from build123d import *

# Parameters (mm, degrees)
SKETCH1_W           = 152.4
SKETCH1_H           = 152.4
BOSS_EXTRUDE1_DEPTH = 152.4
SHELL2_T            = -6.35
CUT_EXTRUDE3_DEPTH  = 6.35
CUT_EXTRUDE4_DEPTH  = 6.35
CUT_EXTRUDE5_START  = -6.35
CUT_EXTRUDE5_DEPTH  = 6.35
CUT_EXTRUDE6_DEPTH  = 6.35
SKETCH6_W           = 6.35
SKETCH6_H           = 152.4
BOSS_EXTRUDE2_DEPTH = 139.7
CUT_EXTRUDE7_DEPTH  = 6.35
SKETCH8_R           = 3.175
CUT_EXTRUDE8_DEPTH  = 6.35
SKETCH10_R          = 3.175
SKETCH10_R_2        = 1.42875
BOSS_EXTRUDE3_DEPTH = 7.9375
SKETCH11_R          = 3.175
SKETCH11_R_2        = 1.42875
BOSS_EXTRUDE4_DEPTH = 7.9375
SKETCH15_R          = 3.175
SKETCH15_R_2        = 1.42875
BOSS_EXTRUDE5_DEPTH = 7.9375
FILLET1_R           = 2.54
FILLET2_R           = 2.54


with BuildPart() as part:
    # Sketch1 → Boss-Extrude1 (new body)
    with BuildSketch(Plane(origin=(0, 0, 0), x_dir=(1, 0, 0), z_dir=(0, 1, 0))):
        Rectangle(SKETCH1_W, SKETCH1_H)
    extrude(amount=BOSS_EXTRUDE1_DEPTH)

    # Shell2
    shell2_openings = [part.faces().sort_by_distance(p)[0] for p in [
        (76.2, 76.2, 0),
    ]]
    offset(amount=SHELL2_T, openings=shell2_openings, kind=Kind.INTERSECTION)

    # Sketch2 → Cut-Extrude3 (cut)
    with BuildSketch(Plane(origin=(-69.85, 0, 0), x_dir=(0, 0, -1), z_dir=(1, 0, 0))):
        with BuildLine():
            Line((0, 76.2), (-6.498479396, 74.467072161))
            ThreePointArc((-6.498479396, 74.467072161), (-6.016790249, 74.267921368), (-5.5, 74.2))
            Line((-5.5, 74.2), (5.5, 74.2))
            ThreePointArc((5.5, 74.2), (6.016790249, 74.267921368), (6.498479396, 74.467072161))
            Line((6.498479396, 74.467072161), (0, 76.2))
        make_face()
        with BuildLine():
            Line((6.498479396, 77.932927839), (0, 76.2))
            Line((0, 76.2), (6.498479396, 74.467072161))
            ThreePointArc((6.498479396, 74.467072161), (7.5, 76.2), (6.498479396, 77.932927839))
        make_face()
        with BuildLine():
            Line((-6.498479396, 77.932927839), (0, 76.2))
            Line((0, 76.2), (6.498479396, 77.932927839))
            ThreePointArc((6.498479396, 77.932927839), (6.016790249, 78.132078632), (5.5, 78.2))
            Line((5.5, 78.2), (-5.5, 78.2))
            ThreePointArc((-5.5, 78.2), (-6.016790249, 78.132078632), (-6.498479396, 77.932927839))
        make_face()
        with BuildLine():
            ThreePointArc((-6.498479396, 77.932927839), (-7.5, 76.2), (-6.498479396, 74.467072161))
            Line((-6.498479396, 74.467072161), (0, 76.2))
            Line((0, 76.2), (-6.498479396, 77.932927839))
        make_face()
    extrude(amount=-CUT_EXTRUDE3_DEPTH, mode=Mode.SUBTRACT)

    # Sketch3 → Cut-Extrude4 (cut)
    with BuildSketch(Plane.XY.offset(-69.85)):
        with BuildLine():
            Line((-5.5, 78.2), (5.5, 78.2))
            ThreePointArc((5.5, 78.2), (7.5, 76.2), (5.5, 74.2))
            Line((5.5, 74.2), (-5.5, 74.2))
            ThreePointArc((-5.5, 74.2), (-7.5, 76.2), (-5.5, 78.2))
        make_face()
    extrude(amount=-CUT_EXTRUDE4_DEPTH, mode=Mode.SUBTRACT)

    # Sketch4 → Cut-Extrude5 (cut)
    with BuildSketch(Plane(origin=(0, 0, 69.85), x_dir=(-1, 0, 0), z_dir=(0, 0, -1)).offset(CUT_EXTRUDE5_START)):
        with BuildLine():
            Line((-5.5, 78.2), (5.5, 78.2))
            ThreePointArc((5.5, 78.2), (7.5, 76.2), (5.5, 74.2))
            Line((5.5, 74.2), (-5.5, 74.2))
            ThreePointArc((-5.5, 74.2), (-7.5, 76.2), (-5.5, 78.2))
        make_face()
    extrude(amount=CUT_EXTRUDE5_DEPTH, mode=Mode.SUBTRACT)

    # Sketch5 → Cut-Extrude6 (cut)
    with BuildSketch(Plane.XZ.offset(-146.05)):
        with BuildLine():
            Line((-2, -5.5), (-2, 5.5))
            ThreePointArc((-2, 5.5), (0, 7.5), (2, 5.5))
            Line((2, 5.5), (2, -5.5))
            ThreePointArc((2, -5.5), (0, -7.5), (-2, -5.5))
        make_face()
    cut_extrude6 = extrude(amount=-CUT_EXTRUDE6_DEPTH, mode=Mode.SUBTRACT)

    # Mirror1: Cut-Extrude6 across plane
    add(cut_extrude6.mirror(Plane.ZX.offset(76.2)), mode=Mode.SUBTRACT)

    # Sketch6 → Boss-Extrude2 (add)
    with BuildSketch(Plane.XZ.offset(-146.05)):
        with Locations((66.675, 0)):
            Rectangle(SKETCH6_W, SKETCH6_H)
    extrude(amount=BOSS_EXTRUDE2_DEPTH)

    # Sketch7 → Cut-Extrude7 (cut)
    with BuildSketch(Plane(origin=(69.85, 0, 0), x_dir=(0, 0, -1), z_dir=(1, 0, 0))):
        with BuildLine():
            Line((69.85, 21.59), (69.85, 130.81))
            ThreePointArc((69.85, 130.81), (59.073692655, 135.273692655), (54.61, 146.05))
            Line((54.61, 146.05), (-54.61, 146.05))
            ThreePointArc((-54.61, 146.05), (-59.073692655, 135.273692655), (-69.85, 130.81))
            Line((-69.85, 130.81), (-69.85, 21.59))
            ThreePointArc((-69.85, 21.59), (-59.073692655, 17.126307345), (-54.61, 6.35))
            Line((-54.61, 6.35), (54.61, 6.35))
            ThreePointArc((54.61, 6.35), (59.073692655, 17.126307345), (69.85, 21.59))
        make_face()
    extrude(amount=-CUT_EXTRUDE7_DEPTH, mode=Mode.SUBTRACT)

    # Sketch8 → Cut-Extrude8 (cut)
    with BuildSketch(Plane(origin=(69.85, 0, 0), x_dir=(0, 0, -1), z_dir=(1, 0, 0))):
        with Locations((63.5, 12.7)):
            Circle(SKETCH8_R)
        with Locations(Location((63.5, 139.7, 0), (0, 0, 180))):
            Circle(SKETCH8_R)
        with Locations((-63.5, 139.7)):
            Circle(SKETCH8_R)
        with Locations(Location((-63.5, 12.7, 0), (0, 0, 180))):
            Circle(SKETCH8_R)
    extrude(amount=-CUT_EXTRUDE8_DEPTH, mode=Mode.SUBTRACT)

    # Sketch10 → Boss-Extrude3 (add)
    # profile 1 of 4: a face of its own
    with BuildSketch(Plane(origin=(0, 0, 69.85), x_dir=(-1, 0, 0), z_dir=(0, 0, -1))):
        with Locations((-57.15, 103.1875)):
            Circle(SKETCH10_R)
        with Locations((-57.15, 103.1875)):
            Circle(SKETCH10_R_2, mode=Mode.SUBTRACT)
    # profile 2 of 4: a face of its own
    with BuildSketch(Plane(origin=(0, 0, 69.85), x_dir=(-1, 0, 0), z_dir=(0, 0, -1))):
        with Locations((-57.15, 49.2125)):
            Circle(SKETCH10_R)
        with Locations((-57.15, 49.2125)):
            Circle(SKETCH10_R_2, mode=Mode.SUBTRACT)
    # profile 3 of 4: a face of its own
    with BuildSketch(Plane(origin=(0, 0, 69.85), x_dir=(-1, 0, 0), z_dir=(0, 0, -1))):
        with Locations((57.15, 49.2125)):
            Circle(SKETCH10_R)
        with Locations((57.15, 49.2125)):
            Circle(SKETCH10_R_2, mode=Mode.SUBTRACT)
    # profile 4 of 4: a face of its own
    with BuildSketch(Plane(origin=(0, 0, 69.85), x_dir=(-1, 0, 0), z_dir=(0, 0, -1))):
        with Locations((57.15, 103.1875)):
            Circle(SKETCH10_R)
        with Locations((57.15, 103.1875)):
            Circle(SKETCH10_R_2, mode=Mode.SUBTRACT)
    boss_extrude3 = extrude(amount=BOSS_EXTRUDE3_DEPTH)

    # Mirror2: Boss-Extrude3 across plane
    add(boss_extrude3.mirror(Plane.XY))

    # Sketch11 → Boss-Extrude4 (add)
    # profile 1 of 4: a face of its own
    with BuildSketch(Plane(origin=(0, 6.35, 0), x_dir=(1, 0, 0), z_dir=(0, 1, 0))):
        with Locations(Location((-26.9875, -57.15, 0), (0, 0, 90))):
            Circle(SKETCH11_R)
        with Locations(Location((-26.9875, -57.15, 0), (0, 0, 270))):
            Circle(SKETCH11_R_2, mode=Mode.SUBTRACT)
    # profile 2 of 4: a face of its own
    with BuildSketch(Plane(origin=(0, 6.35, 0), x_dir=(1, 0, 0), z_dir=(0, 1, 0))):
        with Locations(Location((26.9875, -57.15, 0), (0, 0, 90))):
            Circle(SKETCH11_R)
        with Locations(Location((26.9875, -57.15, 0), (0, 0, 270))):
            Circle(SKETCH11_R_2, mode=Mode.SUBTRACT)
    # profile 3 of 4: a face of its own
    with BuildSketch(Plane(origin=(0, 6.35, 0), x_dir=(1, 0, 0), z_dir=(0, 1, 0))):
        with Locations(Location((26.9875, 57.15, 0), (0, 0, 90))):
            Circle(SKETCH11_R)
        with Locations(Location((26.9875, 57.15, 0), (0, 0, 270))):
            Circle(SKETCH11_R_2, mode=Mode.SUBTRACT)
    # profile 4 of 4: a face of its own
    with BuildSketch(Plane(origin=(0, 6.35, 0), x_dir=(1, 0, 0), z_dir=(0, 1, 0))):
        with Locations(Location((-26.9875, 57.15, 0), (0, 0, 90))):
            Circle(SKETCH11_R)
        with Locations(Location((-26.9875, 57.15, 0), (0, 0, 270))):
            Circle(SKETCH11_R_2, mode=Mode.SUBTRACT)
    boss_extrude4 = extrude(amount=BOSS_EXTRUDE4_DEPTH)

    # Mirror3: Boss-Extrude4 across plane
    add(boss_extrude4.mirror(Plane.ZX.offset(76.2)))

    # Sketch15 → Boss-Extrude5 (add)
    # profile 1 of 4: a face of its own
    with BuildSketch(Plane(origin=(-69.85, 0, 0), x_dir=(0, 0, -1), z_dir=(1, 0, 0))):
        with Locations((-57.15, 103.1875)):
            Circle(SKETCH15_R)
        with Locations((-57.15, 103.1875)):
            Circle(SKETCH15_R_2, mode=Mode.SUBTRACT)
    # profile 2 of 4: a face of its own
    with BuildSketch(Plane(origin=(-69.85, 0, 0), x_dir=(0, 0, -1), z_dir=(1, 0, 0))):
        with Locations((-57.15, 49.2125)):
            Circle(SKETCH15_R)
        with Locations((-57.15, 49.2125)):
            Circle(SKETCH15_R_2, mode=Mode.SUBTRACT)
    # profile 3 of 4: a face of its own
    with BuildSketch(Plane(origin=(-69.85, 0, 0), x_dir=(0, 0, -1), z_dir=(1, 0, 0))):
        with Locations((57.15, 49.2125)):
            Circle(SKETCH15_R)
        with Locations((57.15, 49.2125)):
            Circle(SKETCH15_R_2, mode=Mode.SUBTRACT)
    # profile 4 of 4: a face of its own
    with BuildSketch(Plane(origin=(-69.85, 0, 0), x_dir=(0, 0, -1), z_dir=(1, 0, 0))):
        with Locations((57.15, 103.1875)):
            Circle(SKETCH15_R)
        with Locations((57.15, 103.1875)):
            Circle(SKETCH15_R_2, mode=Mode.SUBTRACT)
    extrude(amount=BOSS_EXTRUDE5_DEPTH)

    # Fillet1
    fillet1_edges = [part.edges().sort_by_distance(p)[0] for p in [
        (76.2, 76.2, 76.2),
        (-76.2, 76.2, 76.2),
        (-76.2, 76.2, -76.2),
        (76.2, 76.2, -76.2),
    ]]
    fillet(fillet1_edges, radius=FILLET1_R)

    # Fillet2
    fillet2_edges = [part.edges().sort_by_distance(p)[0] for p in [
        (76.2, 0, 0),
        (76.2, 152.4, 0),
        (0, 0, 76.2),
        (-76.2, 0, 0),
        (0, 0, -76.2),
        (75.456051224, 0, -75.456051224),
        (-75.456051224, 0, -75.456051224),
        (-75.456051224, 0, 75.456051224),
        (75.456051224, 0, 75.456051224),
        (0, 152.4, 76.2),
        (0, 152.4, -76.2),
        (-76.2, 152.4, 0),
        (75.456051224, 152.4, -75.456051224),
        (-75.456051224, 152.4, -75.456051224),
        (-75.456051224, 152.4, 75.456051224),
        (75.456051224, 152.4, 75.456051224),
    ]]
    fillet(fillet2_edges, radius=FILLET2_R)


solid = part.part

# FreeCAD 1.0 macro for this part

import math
import FreeCAD as App
import Part
import Sketcher
from FreeCAD import Vector
Q = App.Units.Quantity


def edges_at(feature, points):
    """Names of the edges that pass closest to the given points."""
    edges = feature.Shape.Edges
    near = lambda p: min(range(len(edges)), key=lambda i: edges[i].distToShape(Part.Vertex(*p))[0])
    return sorted({f"Edge{near(p) + 1}" for p in points})


def faces_at(feature, points):
    """Names of the faces that lie closest to the given points."""
    faces = feature.Shape.Faces
    near = lambda p: min(range(len(faces)), key=lambda i: faces[i].distToShape(Part.Vertex(*p))[0])
    return sorted({f"Face{near(p) + 1}" for p in points})


def add_polygon(sketch, points):
    """Adds a closed chain of lines whose ends are joined by coincident constraints."""
    first, n = sketch.GeometryCount, len(points)
    for a, b in zip(points, points[1:] + points[:1]):
        sketch.addGeometry(Part.LineSegment(App.Vector(*a, 0), App.Vector(*b, 0)), False)
    for i in range(n):
        sketch.addConstraint(Sketcher.Constraint("Coincident", first + i, 2, first + (i + 1) % n, 1))

doc = App.newDocument("Part")
body = doc.addObject("PartDesign::Body", "Body")

sketch1 = doc.addObject("Sketcher::SketchObject", "Sketch")
body.addObject(sketch1)
sketch1.AttachmentSupport = (doc.XZ_Plane, [""])
sketch1.MapMode = "FlatFace"
add_polygon(sketch1, [(-76.2, -76.2), (-76.2, 76.2), (76.2, 76.2), (76.2, -76.2)])
sketch1.addConstraint([
    Sketcher.Constraint("Vertical", 0),
    Sketcher.Constraint("Horizontal", 1),
    Sketcher.Constraint("Vertical", 2),
    Sketcher.Constraint("Horizontal", 3),
    Sketcher.Constraint("Symmetric", 0, 2, 2, 2, -1, 1),
    Sketcher.Constraint("Equal", 3, 0),
    Sketcher.Constraint("DistanceX", 1, 1, 1, 2, Q("6 in")),
])
pad1 = doc.addObject("PartDesign::Pad", "Pad")
body.addObject(pad1)
pad1.Profile = sketch1
pad1.Length = Q("6 in")
pad1.Reversed = True
doc.recompute()

thickness = doc.addObject("PartDesign::Thickness", "Thickness")
body.addObject(thickness)
thickness.Base = (pad1, faces_at(pad1, [(76.2, 76.2, 0)]))
thickness.Value = Q("0.25 in")
thickness.Reversed = True
thickness.Join = "Intersection"

sketch2 = doc.addObject("Sketcher::SketchObject", "Sketch001")
body.addObject(sketch2)
sketch2.AttachmentSupport = (doc.YZ_Plane, [""])
sketch2.MapMode = "FlatFace"
sketch2.AttachmentOffset = App.Placement(Vector(0, 0, -2.75 * 25.4), App.Rotation())
sketch2.addGeometry([
    Part.ArcOfCircle(Part.Circle(Vector(76.2, 5.5, 0), Vector(0, 0, 1), 2), math.radians(150.050288), math.radians(180)),
    Part.LineSegment(Vector(74.2, 5.5, 0), Vector(74.2, -5.5, 0)),
    Part.ArcOfCircle(Part.Circle(Vector(76.2, -5.5, 0), Vector(0, 0, 1), 2), math.radians(180), math.radians(209.949712)),
    Part.ArcOfCircle(Part.Circle(Vector(76.2, -5.5, 0), Vector(0, 0, 1), 2), math.radians(-150.050288), math.radians(-29.949712)),
    Part.ArcOfCircle(Part.Circle(Vector(76.2, -5.5, 0), Vector(0, 0, 1), 2), math.radians(-29.949712), math.radians(0)),
    Part.LineSegment(Vector(78.2, -5.5, 0), Vector(78.2, 5.5, 0)),
    Part.ArcOfCircle(Part.Circle(Vector(76.2, 5.5, 0), Vector(0, 0, 1), 2), math.radians(0), math.radians(29.949712)),
    Part.ArcOfCircle(Part.Circle(Vector(76.2, 5.5, 0), Vector(0, 0, 1), 2), math.radians(29.949712), math.radians(150.050288)),
], False)
sketch2.addConstraint([
    Sketcher.Constraint("Tangent", 0, 2, 1, 1),
    Sketcher.Constraint("Tangent", 1, 2, 2, 1),
    Sketcher.Constraint("Tangent", 2, 2, 3, 1),
    Sketcher.Constraint("Tangent", 3, 2, 4, 1),
    Sketcher.Constraint("Tangent", 4, 2, 5, 1),
    Sketcher.Constraint("Tangent", 5, 2, 6, 1),
    Sketcher.Constraint("Tangent", 6, 2, 7, 1),
    Sketcher.Constraint("Tangent", 7, 2, 0, 1),
    Sketcher.Constraint("Vertical", 1),
    Sketcher.Constraint("Vertical", 5),
    Sketcher.Constraint("Coincident", 4, 3, 2, 3),
    Sketcher.Constraint("Coincident", 6, 3, 0, 3),
    Sketcher.Constraint("Symmetric", 3, 2, 6, 2, -1),
    Sketcher.Constraint("Horizontal", 2, 2, 3, 2),
    Sketcher.Constraint("Horizontal", 6, 2, 7, 2),
    Sketcher.Constraint("DistanceX", -1, 1, 0, 3, Q("3 in")),
    Sketcher.Constraint("Radius", 0, 2.0),
    Sketcher.Constraint("DistanceY", 1, 2, 1, 1, 11.0),
    Sketcher.Constraint("DistanceY", 2, 2, -1, 1, 6.498479),
])
pocket1 = doc.addObject("PartDesign::Pocket", "Pocket")
body.addObject(pocket1)
pocket1.Profile = sketch2
pocket1.Length = Q("0.25 in")

sketch3 = doc.addObject("Sketcher::SketchObject", "Sketch002")
body.addObject(sketch3)
sketch3.AttachmentSupport = (doc.XY_Plane, [""])
sketch3.MapMode = "FlatFace"
sketch3.AttachmentOffset = App.Placement(Vector(0, 0, -2.75 * 25.4), App.Rotation())
sketch3.addGeometry([
    Part.LineSegment(Vector(5.5, 78.2, 0), Vector(-5.5, 78.2, 0)),
    Part.ArcOfCircle(Part.Circle(Vector(-5.5, 76.2, 0), Vector(0, 0, 1), 2), math.radians(90), math.radians(270)),
    Part.LineSegment(Vector(-5.5, 74.2, 0), Vector(5.5, 74.2, 0)),
    Part.ArcOfCircle(Part.Circle(Vector(5.5, 76.2, 0), Vector(0, 0, 1), 2), math.radians(-90), math.radians(90)),
], False)
sketch3.addConstraint([
    Sketcher.Constraint("Tangent", 0, 2, 1, 1),
    Sketcher.Constraint("Tangent", 1, 2, 2, 1),
    Sketcher.Constraint("Tangent", 2, 2, 3, 1),
    Sketcher.Constraint("Tangent", 3, 2, 0, 1),
    Sketcher.Constraint("Horizontal", 0),
    Sketcher.Constraint("Horizontal", 2),
    Sketcher.Constraint("DistanceY", -1, 1, 1, 3, Q("3 in")),
    Sketcher.Constraint("Radius", 1, 2.0),
    Sketcher.Constraint("DistanceX", 0, 2, 0, 1, 11.0),
    Sketcher.Constraint("DistanceX", 1, 3, -1, 1, 5.5),
])
pocket2 = doc.addObject("PartDesign::Pocket", "Pocket001")
body.addObject(pocket2)
pocket2.Profile = sketch3
pocket2.Length = Q("0.25 in")

sketch4 = doc.addObject("Sketcher::SketchObject", "Sketch003")
body.addObject(sketch4)
sketch4.AttachmentSupport = (doc.XY_Plane, [""])
sketch4.MapMode = "FlatFace"
sketch4.AttachmentOffset = App.Placement(Vector(0, 0, 3 * 25.4), App.Rotation())
sketch4.addGeometry([
    Part.LineSegment(Vector(-5.5, 78.2, 0), Vector(5.5, 78.2, 0)),
    Part.ArcOfCircle(Part.Circle(Vector(5.5, 76.2, 0), Vector(0, 0, 1), 2), math.radians(-90), math.radians(90)),
    Part.LineSegment(Vector(5.5, 74.2, 0), Vector(-5.5, 74.2, 0)),
    Part.ArcOfCircle(Part.Circle(Vector(-5.5, 76.2, 0), Vector(0, 0, 1), 2), math.radians(90), math.radians(270)),
], False)
sketch4.addConstraint([
    Sketcher.Constraint("Tangent", 0, 2, 1, 2),
    Sketcher.Constraint("Tangent", 1, 1, 2, 1),
    Sketcher.Constraint("Tangent", 2, 2, 3, 2),
    Sketcher.Constraint("Tangent", 3, 1, 0, 1),
    Sketcher.Constraint("Horizontal", 0),
    Sketcher.Constraint("Horizontal", 2),
    Sketcher.Constraint("DistanceY", -1, 1, 1, 3, Q("3 in")),
    Sketcher.Constraint("Radius", 1, 2.0),
    Sketcher.Constraint("DistanceX", 0, 1, 0, 2, 11.0),
    Sketcher.Constraint("DistanceX", -1, 1, 1, 3, 5.5),
])
pocket3 = doc.addObject("PartDesign::Pocket", "Pocket002")
body.addObject(pocket3)
pocket3.Profile = sketch4
pocket3.Length = Q("0.25 in")

sketch5 = doc.addObject("Sketcher::SketchObject", "Sketch004")
body.addObject(sketch5)
sketch5.AttachmentSupport = (doc.XZ_Plane, [""])
sketch5.MapMode = "FlatFace"
sketch5.AttachmentOffset = App.Placement(Vector(0, 0, -5.75 * 25.4), App.Rotation())
sketch5.addGeometry([
    Part.LineSegment(Vector(-2, 5.5, 0), Vector(-2, -5.5, 0)),
    Part.ArcOfCircle(Part.Circle(Vector(0, -5.5, 0), Vector(0, 0, 1), 2), math.radians(180), math.radians(360)),
    Part.LineSegment(Vector(2, -5.5, 0), Vector(2, 5.5, 0)),
    Part.ArcOfCircle(Part.Circle(Vector(0, 5.5, 0), Vector(0, 0, 1), 2), math.radians(0), math.radians(180)),
], False)
sketch5.addConstraint([
    Sketcher.Constraint("Tangent", 0, 2, 1, 1),
    Sketcher.Constraint("Tangent", 1, 2, 2, 1),
    Sketcher.Constraint("Tangent", 2, 2, 3, 1),
    Sketcher.Constraint("Tangent", 3, 2, 0, 1),
    Sketcher.Constraint("Vertical", 0),
    Sketcher.Constraint("Vertical", 2),
    Sketcher.Constraint("Symmetric", 1, 3, 3, 3, -1, 1),
    Sketcher.Constraint("Radius", 1, 2.0),
    Sketcher.Constraint("DistanceY", 0, 2, 0, 1, 11.0),
])
pocket4 = doc.addObject("PartDesign::Pocket", "Pocket003")
body.addObject(pocket4)
pocket4.Profile = sketch5
pocket4.Length = Q("0.25 in")
doc.recompute()

datumplane = doc.addObject("PartDesign::Plane", "DatumPlane")
body.addObject(datumplane)
datumplane.AttachmentSupport = (doc.XZ_Plane, [""])
datumplane.MapMode = "FlatFace"
datumplane.AttachmentOffset = App.Placement(Vector(0, 0, -3 * 25.4), App.Rotation())
mirrored = doc.addObject("PartDesign::Mirrored", "Mirrored")
body.addObject(mirrored)
mirrored.Originals = [pocket4]
mirrored.MirrorPlane = (datumplane, [""])
body.Tip = mirrored

sketch6 = doc.addObject("Sketcher::SketchObject", "Sketch005")
body.addObject(sketch6)
sketch6.AttachmentSupport = (doc.XZ_Plane, [""])
sketch6.MapMode = "FlatFace"
sketch6.AttachmentOffset = App.Placement(Vector(0, 0, -5.75 * 25.4), App.Rotation())
add_polygon(sketch6, [(63.5, 76.2), (63.5, -76.2), (69.85, -76.2), (69.85, 76.2)])
sketch6.addConstraint([
    Sketcher.Constraint("Vertical", 0),
    Sketcher.Constraint("Horizontal", 1),
    Sketcher.Constraint("Vertical", 2),
    Sketcher.Constraint("Horizontal", 3),
    Sketcher.Constraint("DistanceY", 0, 2, 0, 1, Q("6 in")),
    Sketcher.Constraint("DistanceY", 0, 2, -1, 1, Q("3 in")),
    Sketcher.Constraint("DistanceX", 1, 1, 1, 2, Q("0.25 in")),
    Sketcher.Constraint("DistanceX", -1, 1, 0, 2, Q("2.5 in")),
])
pad2 = doc.addObject("PartDesign::Pad", "Pad001")
body.addObject(pad2)
pad2.Profile = sketch6
pad2.Length = Q("5.5 in")

sketch7 = doc.addObject("Sketcher::SketchObject", "Sketch006")
body.addObject(sketch7)
sketch7.AttachmentSupport = (doc.YZ_Plane, [""])
sketch7.MapMode = "FlatFace"
sketch7.AttachmentOffset = App.Placement(Vector(0, 0, 2.75 * 25.4), App.Rotation())
sketch7.addGeometry([
    Part.LineSegment(Vector(21.59, -69.85, 0), Vector(130.81, -69.85, 0)),
    Part.ArcOfCircle(Part.Circle(Vector(146.05, -69.85, 0), Vector(0, 0, 1), 15.24), math.radians(90), math.radians(180)),
    Part.LineSegment(Vector(146.05, -54.61, 0), Vector(146.05, 54.61, 0)),
    Part.ArcOfCircle(Part.Circle(Vector(146.05, 69.85, 0), Vector(0, 0, 1), 15.24), math.radians(-180), math.radians(-90)),
    Part.LineSegment(Vector(130.81, 69.85, 0), Vector(21.59, 69.85, 0)),
    Part.ArcOfCircle(Part.Circle(Vector(6.35, 69.85, 0), Vector(0, 0, 1), 15.24), math.radians(-90), math.radians(0)),
    Part.LineSegment(Vector(6.35, 54.61, 0), Vector(6.35, -54.61, 0)),
    Part.ArcOfCircle(Part.Circle(Vector(6.35, -69.85, 0), Vector(0, 0, 1), 15.24), math.radians(0), math.radians(90)),
], False)
sketch7.addConstraint([
    Sketcher.Constraint("Coincident", 0, 2, 1, 2),
    Sketcher.Constraint("Coincident", 1, 1, 2, 1),
    Sketcher.Constraint("Coincident", 2, 2, 3, 2),
    Sketcher.Constraint("Coincident", 3, 1, 4, 1),
    Sketcher.Constraint("Coincident", 4, 2, 5, 2),
    Sketcher.Constraint("Coincident", 5, 1, 6, 1),
    Sketcher.Constraint("Coincident", 6, 2, 7, 2),
    Sketcher.Constraint("Coincident", 7, 1, 0, 1),
    Sketcher.Constraint("Horizontal", 0),
    Sketcher.Constraint("Vertical", 2),
    Sketcher.Constraint("Horizontal", 4),
    Sketcher.Constraint("Vertical", 6),
    Sketcher.Constraint("Equal", 1, 3),
    Sketcher.Constraint("Equal", 3, 5),
    Sketcher.Constraint("Equal", 5, 7),
    Sketcher.Constraint("Symmetric", 1, 3, 3, 3, -1),
    Sketcher.Constraint("Symmetric", 5, 3, 7, 3, -1),
    Sketcher.Constraint("Horizontal", 3, 3, 5, 3),
    Sketcher.Constraint("Horizontal", 7, 3, 0, 2),
    Sketcher.Constraint("Horizontal", 5, 3, 3, 1),
    Sketcher.Constraint("Vertical", 3, 3, 1, 1),
    Sketcher.Constraint("Vertical", 7, 3, 5, 1),
    Sketcher.Constraint("Equal", 4, 2),
    Sketcher.Constraint("Radius", 1, Q("0.6 in")),
    Sketcher.Constraint("DistanceX", 0, 1, 0, 2, Q("4.3 in")),
    Sketcher.Constraint("DistanceX", -1, 1, 1, 3, Q("5.75 in")),
])
pocket5 = doc.addObject("PartDesign::Pocket", "Pocket004")
body.addObject(pocket5)
pocket5.Profile = sketch7
pocket5.Length = Q("0.25 in")

sketch8 = doc.addObject("Sketcher::SketchObject", "Sketch007")
body.addObject(sketch8)
sketch8.AttachmentSupport = (doc.YZ_Plane, [""])
sketch8.MapMode = "FlatFace"
sketch8.AttachmentOffset = App.Placement(Vector(0, 0, 2.75 * 25.4), App.Rotation())
sketch8.addGeometry([
    Part.Circle(Vector(12.7, -63.5, 0), Vector(0, 0, 1), 3.175),
    Part.Circle(Vector(139.7, -63.5, 0), Vector(0, 0, 1), 3.175),
    Part.Circle(Vector(139.7, 63.5, 0), Vector(0, 0, 1), 3.175),
    Part.Circle(Vector(12.7, 63.5, 0), Vector(0, 0, 1), 3.175),
], False)
sketch8.addConstraint([
    Sketcher.Constraint("Equal", 0, 1),
    Sketcher.Constraint("Equal", 1, 2),
    Sketcher.Constraint("Equal", 2, 3),
    Sketcher.Constraint("Symmetric", 1, 3, 2, 3, -1),
    Sketcher.Constraint("Symmetric", 0, 3, 3, 3, -1),
    Sketcher.Constraint("Horizontal", 0, 3, 1, 3),
    Sketcher.Constraint("Diameter", 0, Q("0.25 in")),
    Sketcher.Constraint("DistanceX", 0, 3, 1, 3, Q("5 in")),
    Sketcher.Constraint("DistanceY", 1, 3, 2, 3, Q("5 in")),
    Sketcher.Constraint("DistanceX", -1, 1, 0, 3, Q("0.5 in")),
])
pocket6 = doc.addObject("PartDesign::Pocket", "Pocket005")
body.addObject(pocket6)
pocket6.Profile = sketch8
pocket6.Length = Q("0.25 in")

sketch9 = doc.addObject("Sketcher::SketchObject", "Sketch008")
body.addObject(sketch9)
sketch9.AttachmentSupport = (doc.XY_Plane, [""])
sketch9.MapMode = "FlatFace"
sketch9.AttachmentOffset = App.Placement(Vector(0, 0, 2.75 * 25.4), App.Rotation())
sketch9.addGeometry([
    Part.Circle(Vector(57.15, 103.1875, 0), Vector(0, 0, 1), 3.175),
    Part.Circle(Vector(57.15, 103.1875, 0), Vector(0, 0, 1), 1.42875),
    Part.Circle(Vector(57.15, 49.2125, 0), Vector(0, 0, 1), 3.175),
    Part.Circle(Vector(57.15, 49.2125, 0), Vector(0, 0, 1), 1.42875),
    Part.Circle(Vector(-57.15, 49.2125, 0), Vector(0, 0, 1), 3.175),
    Part.Circle(Vector(-57.15, 49.2125, 0), Vector(0, 0, 1), 1.42875),
    Part.Circle(Vector(-57.15, 103.1875, 0), Vector(0, 0, 1), 3.175),
    Part.Circle(Vector(-57.15, 103.1875, 0), Vector(0, 0, 1), 1.42875),
], False)
sketch9.addConstraint([
    Sketcher.Constraint("Coincident", 1, 3, 0, 3),
    Sketcher.Constraint("Coincident", 3, 3, 2, 3),
    Sketcher.Constraint("Coincident", 5, 3, 4, 3),
    Sketcher.Constraint("Coincident", 7, 3, 6, 3),
    Sketcher.Constraint("Equal", 0, 2),
    Sketcher.Constraint("Equal", 1, 3),
    Sketcher.Constraint("Equal", 2, 4),
    Sketcher.Constraint("Equal", 3, 5),
    Sketcher.Constraint("Equal", 4, 6),
    Sketcher.Constraint("Equal", 5, 7),
    Sketcher.Constraint("Symmetric", 2, 3, 4, 3, -2),
    Sketcher.Constraint("Symmetric", 0, 3, 6, 3, -2),
    Sketcher.Constraint("Vertical", 1, 3, 2, 3),
    Sketcher.Constraint("Diameter", 0, Q("0.25 in")),
    Sketcher.Constraint("Diameter", 1, Q("0.1125 in")),
    Sketcher.Constraint("DistanceX", 4, 3, 2, 3, Q("4.5 in")),
    Sketcher.Constraint("DistanceY", -1, 1, 0, 3, Q("4.0625 in")),
    Sketcher.Constraint("DistanceY", -1, 1, 2, 3, Q("1.9375 in")),
])
pad3 = doc.addObject("PartDesign::Pad", "Pad002")
body.addObject(pad3)
pad3.Profile = sketch9
pad3.Length = Q("0.3125 in")
pad3.Reversed = True
doc.recompute()

mirrored2 = doc.addObject("PartDesign::Mirrored", "Mirrored001")
body.addObject(mirrored2)
mirrored2.Originals = [pad3]
mirrored2.MirrorPlane = (doc.XY_Plane, [""])
body.Tip = mirrored2

sketch10 = doc.addObject("Sketcher::SketchObject", "Sketch009")
body.addObject(sketch10)
sketch10.AttachmentSupport = (doc.XZ_Plane, [""])
sketch10.MapMode = "FlatFace"
sketch10.AttachmentOffset = App.Placement(Vector(0, 0, -0.25 * 25.4), App.Rotation())
sketch10.addGeometry([
    Part.Circle(Vector(-26.9875, 57.15, 0), Vector(0, 0, 1), 3.175),
    Part.Circle(Vector(-26.9875, 57.15, 0), Vector(0, 0, 1), 1.42875),
    Part.Circle(Vector(26.9875, 57.15, 0), Vector(0, 0, 1), 3.175),
    Part.Circle(Vector(26.9875, 57.15, 0), Vector(0, 0, 1), 1.42875),
    Part.Circle(Vector(26.9875, -57.15, 0), Vector(0, 0, 1), 3.175),
    Part.Circle(Vector(26.9875, -57.15, 0), Vector(0, 0, 1), 1.42875),
    Part.Circle(Vector(-26.9875, -57.15, 0), Vector(0, 0, 1), 3.175),
    Part.Circle(Vector(-26.9875, -57.15, 0), Vector(0, 0, 1), 1.42875),
], False)
sketch10.addConstraint([
    Sketcher.Constraint("Coincident", 1, 3, 0, 3),
    Sketcher.Constraint("Coincident", 3, 3, 2, 3),
    Sketcher.Constraint("Coincident", 5, 3, 4, 3),
    Sketcher.Constraint("Coincident", 7, 3, 6, 3),
    Sketcher.Constraint("Equal", 0, 2),
    Sketcher.Constraint("Equal", 1, 3),
    Sketcher.Constraint("Equal", 2, 4),
    Sketcher.Constraint("Equal", 3, 5),
    Sketcher.Constraint("Equal", 4, 6),
    Sketcher.Constraint("Equal", 5, 7),
    Sketcher.Constraint("Symmetric", 0, 3, 4, 3, -1, 1),
    Sketcher.Constraint("Symmetric", 2, 3, 6, 3, -1, 1),
    Sketcher.Constraint("Symmetric", 0, 3, 2, 3, -2),
    Sketcher.Constraint("Diameter", 0, Q("0.25 in")),
    Sketcher.Constraint("Diameter", 1, Q("0.1125 in")),
    Sketcher.Constraint("DistanceY", 4, 3, 2, 3, Q("4.5 in")),
    Sketcher.Constraint("DistanceX", 0, 3, -1, 1, Q("1.0625 in")),
])
pad4 = doc.addObject("PartDesign::Pad", "Pad003")
body.addObject(pad4)
pad4.Profile = sketch10
pad4.Length = Q("0.3125 in")
pad4.Reversed = True
doc.recompute()

datumplane2 = doc.addObject("PartDesign::Plane", "DatumPlane001")
body.addObject(datumplane2)
datumplane2.AttachmentSupport = (doc.XZ_Plane, [""])
datumplane2.MapMode = "FlatFace"
datumplane2.AttachmentOffset = App.Placement(Vector(0, 0, -3 * 25.4), App.Rotation())
mirrored3 = doc.addObject("PartDesign::Mirrored", "Mirrored002")
body.addObject(mirrored3)
mirrored3.Originals = [pad4]
mirrored3.MirrorPlane = (datumplane2, [""])
body.Tip = mirrored3

sketch11 = doc.addObject("Sketcher::SketchObject", "Sketch010")
body.addObject(sketch11)
sketch11.AttachmentSupport = (doc.YZ_Plane, [""])
sketch11.MapMode = "FlatFace"
sketch11.AttachmentOffset = App.Placement(Vector(0, 0, -2.75 * 25.4), App.Rotation())
sketch11.addGeometry([
    Part.Circle(Vector(103.1875, 57.15, 0), Vector(0, 0, 1), 3.175),
    Part.Circle(Vector(103.1875, 57.15, 0), Vector(0, 0, 1), 1.42875),
    Part.Circle(Vector(49.2125, 57.15, 0), Vector(0, 0, 1), 3.175),
    Part.Circle(Vector(49.2125, 57.15, 0), Vector(0, 0, 1), 1.42875),
    Part.Circle(Vector(49.2125, -57.15, 0), Vector(0, 0, 1), 3.175),
    Part.Circle(Vector(49.2125, -57.15, 0), Vector(0, 0, 1), 1.42875),
    Part.Circle(Vector(103.1875, -57.15, 0), Vector(0, 0, 1), 3.175),
    Part.Circle(Vector(103.1875, -57.15, 0), Vector(0, 0, 1), 1.42875),
], False)
sketch11.addConstraint([
    Sketcher.Constraint("Coincident", 1, 3, 0, 3),
    Sketcher.Constraint("Coincident", 3, 3, 2, 3),
    Sketcher.Constraint("Coincident", 5, 3, 4, 3),
    Sketcher.Constraint("Coincident", 7, 3, 6, 3),
    Sketcher.Constraint("Equal", 0, 2),
    Sketcher.Constraint("Equal", 1, 3),
    Sketcher.Constraint("Equal", 2, 4),
    Sketcher.Constraint("Equal", 3, 5),
    Sketcher.Constraint("Equal", 4, 6),
    Sketcher.Constraint("Equal", 5, 7),
    Sketcher.Constraint("Symmetric", 2, 3, 4, 3, -1),
    Sketcher.Constraint("Symmetric", 0, 3, 6, 3, -1),
    Sketcher.Constraint("Horizontal", 1, 3, 2, 3),
    Sketcher.Constraint("Diameter", 0, Q("0.25 in")),
    Sketcher.Constraint("Diameter", 1, Q("0.1125 in")),
    Sketcher.Constraint("DistanceY", 4, 3, 2, 3, Q("4.5 in")),
    Sketcher.Constraint("DistanceX", -1, 1, 0, 3, Q("4.0625 in")),
    Sketcher.Constraint("DistanceX", -1, 1, 2, 3, Q("1.9375 in")),
])
pad5 = doc.addObject("PartDesign::Pad", "Pad004")
body.addObject(pad5)
pad5.Profile = sketch11
pad5.Length = Q("0.3125 in")
doc.recompute()

fillet = doc.addObject("PartDesign::Fillet", "Fillet")
body.addObject(fillet)
fillet.Base = (pad5, edges_at(pad5, [
    (76.2, 76.2, 76.2),
    (-76.2, 76.2, 76.2),
    (-76.2, 76.2, -76.2),
    (76.2, 76.2, -76.2),
]))
fillet.Radius = Q("0.1 in")
doc.recompute()

fillet2 = doc.addObject("PartDesign::Fillet", "Fillet001")
body.addObject(fillet2)
fillet2.Base = (fillet, edges_at(fillet, [
    (76.2, 0, 0),
    (76.2, 152.4, 0),
    (0, 0, 76.2),
    (-76.2, 0, 0),
    (0, 0, -76.2),
    (75.456, 0, -75.456),
    (-75.456, 0, -75.456),
    (-75.456, 0, 75.456),
    (75.456, 0, 75.456),
    (0, 152.4, 76.2),
    (0, 152.4, -76.2),
    (-76.2, 152.4, 0),
    (75.456, 152.4, -75.456),
    (-75.456, 152.4, -75.456),
    (-75.456, 152.4, 75.456),
    (75.456, 152.4, 75.456),
]))
fillet2.Radius = Q("0.1 in")

doc.recompute()
